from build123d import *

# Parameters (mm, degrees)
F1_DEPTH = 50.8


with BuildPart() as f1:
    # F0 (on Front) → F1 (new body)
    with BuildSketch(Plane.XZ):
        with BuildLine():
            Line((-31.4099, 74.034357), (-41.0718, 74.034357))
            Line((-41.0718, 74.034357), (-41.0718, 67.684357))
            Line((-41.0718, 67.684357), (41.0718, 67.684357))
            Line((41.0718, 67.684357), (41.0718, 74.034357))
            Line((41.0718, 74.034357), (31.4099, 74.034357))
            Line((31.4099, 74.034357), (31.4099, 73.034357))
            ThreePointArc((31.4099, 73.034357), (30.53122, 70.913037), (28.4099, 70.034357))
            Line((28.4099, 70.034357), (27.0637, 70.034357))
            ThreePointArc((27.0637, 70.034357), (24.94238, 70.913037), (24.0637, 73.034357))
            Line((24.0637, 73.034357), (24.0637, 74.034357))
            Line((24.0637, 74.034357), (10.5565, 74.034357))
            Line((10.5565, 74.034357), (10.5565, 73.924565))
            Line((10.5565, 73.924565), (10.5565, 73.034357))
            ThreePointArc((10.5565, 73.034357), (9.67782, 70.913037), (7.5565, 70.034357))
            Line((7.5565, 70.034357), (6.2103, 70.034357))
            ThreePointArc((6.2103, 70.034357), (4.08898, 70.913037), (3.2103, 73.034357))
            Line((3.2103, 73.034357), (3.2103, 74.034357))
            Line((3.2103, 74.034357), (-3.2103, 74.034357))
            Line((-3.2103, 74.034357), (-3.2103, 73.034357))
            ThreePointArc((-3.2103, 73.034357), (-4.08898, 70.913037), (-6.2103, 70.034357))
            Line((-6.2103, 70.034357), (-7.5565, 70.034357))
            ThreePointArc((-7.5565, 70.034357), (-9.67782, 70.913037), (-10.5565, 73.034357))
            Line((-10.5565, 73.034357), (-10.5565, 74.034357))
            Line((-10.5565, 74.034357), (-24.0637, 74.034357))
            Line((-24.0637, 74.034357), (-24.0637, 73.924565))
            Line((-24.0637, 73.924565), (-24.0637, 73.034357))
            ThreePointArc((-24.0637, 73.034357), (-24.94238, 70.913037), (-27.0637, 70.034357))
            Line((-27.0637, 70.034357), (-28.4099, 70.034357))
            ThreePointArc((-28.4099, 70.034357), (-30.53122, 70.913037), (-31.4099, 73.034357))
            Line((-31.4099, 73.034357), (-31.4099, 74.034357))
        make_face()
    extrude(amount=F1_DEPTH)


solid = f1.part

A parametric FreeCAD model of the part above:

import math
import FreeCAD as App
import Part
import Sketcher
from FreeCAD import Vector
Q = App.Units.Quantity

doc = App.newDocument("Part")
body = doc.addObject("PartDesign::Body", "Body")

sketch1 = doc.addObject("Sketcher::SketchObject", "Sketch")
body.addObject(sketch1)
sketch1.AttachmentSupport = (doc.XZ_Plane, [""])
sketch1.MapMode = "FlatFace"
sketch1.addGeometry(Part.LineSegment(Vector(-31.4, 74, 0), Vector(-41.1, 74, 0)), False)
sketch1.addGeometry(Part.LineSegment(Vector(-41.1, 74, 0), Vector(-41.1, 67.7, 0)), False)
sketch1.addGeometry(Part.LineSegment(Vector(-41.1, 67.7, 0), Vector(41.1, 67.7, 0)), False)
sketch1.addGeometry(Part.LineSegment(Vector(41.1, 67.7, 0), Vector(41.1, 74, 0)), False)
sketch1.addGeometry(Part.LineSegment(Vector(41.1, 74, 0), Vector(31.4, 74, 0)), False)
sketch1.addGeometry(Part.LineSegment(Vector(31.4, 74, 0), Vector(31.4, 73, 0)), False)
sketch1.addGeometry(Part.ArcOfCircle(Part.Circle(Vector(28.4, 73, 0), Vector(0, 0, 1), 3), math.radians(-90), math.radians(0)), False)
sketch1.addGeometry(Part.LineSegment(Vector(28.4, 70, 0), Vector(27.1, 70, 0)), False)
sketch1.addGeometry(Part.ArcOfCircle(Part.Circle(Vector(27.1, 73, 0), Vector(0, 0, 1), 3), math.radians(-180), math.radians(-90)), False)
sketch1.addGeometry(Part.LineSegment(Vector(24.1, 73, 0), Vector(24.1, 74, 0)), False)
sketch1.addGeometry(Part.LineSegment(Vector(24.1, 74, 0), Vector(10.6, 74, 0)), False)
sketch1.addGeometry(Part.LineSegment(Vector(10.6, 74, 0), Vector(10.6, 73, 0)), False)
sketch1.addGeometry(Part.ArcOfCircle(Part.Circle(Vector(7.6, 73, 0), Vector(0, 0, 1), 3), math.radians(-90), math.radians(0)), False)
sketch1.addGeometry(Part.LineSegment(Vector(7.6, 70, 0), Vector(6.2, 70, 0)), False)
sketch1.addGeometry(Part.ArcOfCircle(Part.Circle(Vector(6.2, 73, 0), Vector(0, 0, 1), 3), math.radians(-180), math.radians(-90)), False)
sketch1.addGeometry(Part.LineSegment(Vector(3.2, 73, 0), Vector(3.2, 74, 0)), False)
sketch1.addGeometry(Part.LineSegment(Vector(3.2, 74, 0), Vector(-3.2, 74, 0)), False)
sketch1.addGeometry(Part.LineSegment(Vector(-3.2, 74, 0), Vector(-3.2, 73, 0)), False)
sketch1.addGeometry(Part.ArcOfCircle(Part.Circle(Vector(-6.2, 73, 0), Vector(0, 0, 1), 3), math.radians(-90), math.radians(0)), False)
sketch1.addGeometry(Part.LineSegment(Vector(-6.2, 70, 0), Vector(-7.6, 70, 0)), False)
sketch1.addGeometry(Part.ArcOfCircle(Part.Circle(Vector(-7.6, 73, 0), Vector(0, 0, 1), 3), math.radians(-180), math.radians(-90)), False)
sketch1.addGeometry(Part.LineSegment(Vector(-10.6, 73, 0), Vector(-10.6, 74, 0)), False)
sketch1.addGeometry(Part.LineSegment(Vector(-10.6, 74, 0), Vector(-24.1, 74, 0)), False)
sketch1.addGeometry(Part.LineSegment(Vector(-24.1, 74, 0), Vector(-24.1, 73, 0)), False)
sketch1.addGeometry(Part.ArcOfCircle(Part.Circle(Vector(-27.1, 73, 0), Vector(0, 0, 1), 3), math.radians(-90), math.radians(0)), False)
sketch1.addGeometry(Part.LineSegment(Vector(-27.1, 70, 0), Vector(-28.4, 70, 0)), False)
sketch1.addGeometry(Part.ArcOfCircle(Part.Circle(Vector(-28.4, 73, 0), Vector(0, 0, 1), 3), math.radians(-180), math.radians(-90)), False)
sketch1.addGeometry(Part.LineSegment(Vector(-31.4, 73, 0), Vector(-31.4, 74, 0)), False)
sketch1.addConstraint(Sketcher.Constraint("Coincident", 0, 2, 1, 1))
sketch1.addConstraint(Sketcher.Constraint("Coincident", 1, 2, 2, 1))
sketch1.addConstraint(Sketcher.Constraint("Coincident", 2, 2, 3, 1))
sketch1.addConstraint(Sketcher.Constraint("Coincident", 3, 2, 4, 1))
sketch1.addConstraint(Sketcher.Constraint("Coincident", 4, 2, 5, 1))
sketch1.addConstraint(Sketcher.Constraint("Tangent", 5, 2, 6, 2))
sketch1.addConstraint(Sketcher.Constraint("Tangent", 6, 1, 7, 1))
sketch1.addConstraint(Sketcher.Constraint("Tangent", 7, 2, 8, 2))
sketch1.addConstraint(Sketcher.Constraint("Tangent", 8, 1, 9, 1))
sketch1.addConstraint(Sketcher.Constraint("Coincident", 9, 2, 10, 1))
sketch1.addConstraint(Sketcher.Constraint("Coincident", 10, 2, 11, 1))
sketch1.addConstraint(Sketcher.Constraint("Tangent", 11, 2, 12, 2))
sketch1.addConstraint(Sketcher.Constraint("Tangent", 12, 1, 13, 1))
sketch1.addConstraint(Sketcher.Constraint("Tangent", 13, 2, 14, 2))
sketch1.addConstraint(Sketcher.Constraint("Tangent", 14, 1, 15, 1))
sketch1.addConstraint(Sketcher.Constraint("Coincident", 15, 2, 16, 1))
sketch1.addConstraint(Sketcher.Constraint("Coincident", 16, 2, 17, 1))
sketch1.addConstraint(Sketcher.Constraint("Tangent", 17, 2, 18, 2))
sketch1.addConstraint(Sketcher.Constraint("Tangent", 18, 1, 19, 1))
sketch1.addConstraint(Sketcher.Constraint("Tangent", 19, 2, 20, 2))
sketch1.addConstraint(Sketcher.Constraint("Tangent", 20, 1, 21, 1))
sketch1.addConstraint(Sketcher.Constraint("Coincident", 21, 2, 22, 1))
sketch1.addConstraint(Sketcher.Constraint("Coincident", 22, 2, 23, 1))
sketch1.addConstraint(Sketcher.Constraint("Tangent", 23, 2, 24, 2))
sketch1.addConstraint(Sketcher.Constraint("Tangent", 24, 1, 25, 1))
sketch1.addConstraint(Sketcher.Constraint("Tangent", 25, 2, 26, 2))
sketch1.addConstraint(Sketcher.Constraint("Tangent", 26, 1, 27, 1))
sketch1.addConstraint(Sketcher.Constraint("Coincident", 27, 2, 0, 1))
sketch1.addConstraint(Sketcher.Constraint("Horizontal", 0))
sketch1.addConstraint(Sketcher.Constraint("Vertical", 1))
sketch1.addConstraint(Sketcher.Constraint("Horizontal", 2))
sketch1.addConstraint(Sketcher.Constraint("Vertical", 3))
sketch1.addConstraint(Sketcher.Constraint("Horizontal", 4))
sketch1.addConstraint(Sketcher.Constraint("Vertical", 5))
sketch1.addConstraint(Sketcher.Constraint("Horizontal", 7))
sketch1.addConstraint(Sketcher.Constraint("Vertical", 9))
sketch1.addConstraint(Sketcher.Constraint("Horizontal", 10))
sketch1.addConstraint(Sketcher.Constraint("Vertical", 11))
sketch1.addConstraint(Sketcher.Constraint("Horizontal", 13))
sketch1.addConstraint(Sketcher.Constraint("Vertical", 15))
sketch1.addConstraint(Sketcher.Constraint("Horizontal", 16))
sketch1.addConstraint(Sketcher.Constraint("Vertical", 17))
sketch1.addConstraint(Sketcher.Constraint("Horizontal", 19))
sketch1.addConstraint(Sketcher.Constraint("Vertical", 21))
sketch1.addConstraint(Sketcher.Constraint("Horizontal", 22))
sketch1.addConstraint(Sketcher.Constraint("Vertical", 23))
sketch1.addConstraint(Sketcher.Constraint("Horizontal", 25))
sketch1.addConstraint(Sketcher.Constraint("Vertical", 27))
sketch1.addConstraint(Sketcher.Constraint("Equal", 6, 8))
sketch1.addConstraint(Sketcher.Constraint("Equal", 8, 12))
sketch1.addConstraint(Sketcher.Constraint("Equal", 12, 14))
sketch1.addConstraint(Sketcher.Constraint("Equal", 14, 18))
sketch1.addConstraint(Sketcher.Constraint("Equal", 18, 20))
sketch1.addConstraint(Sketcher.Constraint("Equal", 20, 24))
sketch1.addConstraint(Sketcher.Constraint("Equal", 24, 26))
sketch1.addConstraint(Sketcher.Constraint("Symmetric", 14, 3, 18, 3, -2))
sketch1.addConstraint(Sketcher.Constraint("Symmetric", 8, 3, 24, 3, -2))
sketch1.addConstraint(Sketcher.Constraint("Symmetric", 0, 2, 3, 2, -2))
sketch1.addConstraint(Sketcher.Constraint("Symmetric", 10, 2, 21, 2, -2))
sketch1.addConstraint(Sketcher.Constraint("Horizontal", 8, 3, 12, 3))
sketch1.addConstraint(Sketcher.Constraint("Horizontal", 4, 2, 9, 2))
sketch1.addConstraint(Sketcher.Constraint("Horizontal", 10, 2, 15, 2))
sketch1.addConstraint(Sketcher.Constraint("Equal", 0, 4))
sketch1.addConstraint(Sketcher.Constraint("Equal", 7, 13))
sketch1.addConstraint(Sketcher.Constraint("DistanceY", 1, 2, 1, 1, Q("0.25 in")))
sketch1.addConstraint(Sketcher.Constraint("DistanceX", 2, 1, 2, 2, Q("3.234 in")))
sketch1.addConstraint(Sketcher.Constraint("DistanceX", 7, 2, 7, 1, Q("0.053 in")))
sketch1.addConstraint(Sketcher.Constraint("Radius", 6, 3.000001))
sketch1.addConstraint(Sketcher.Constraint("DistanceX", 18, 3, 8, 3, Q("1.3100001 in")))
sketch1.addConstraint(Sketcher.Constraint("DistanceX", 12, 3, 8, 3, Q("0.7680001 in")))
sketch1.addConstraint(Sketcher.Constraint("DistanceY", 5, 2, 5, 1, 1.0))
sketch1.addConstraint(Sketcher.Constraint("DistanceY", -1, 1, 6, 3, 73.034358))
pad1 = doc.addObject("PartDesign::Pad", "Pad")
body.addObject(pad1)
pad1.Profile = sketch1
pad1.Length = Q("2 in")

doc.recompute()
